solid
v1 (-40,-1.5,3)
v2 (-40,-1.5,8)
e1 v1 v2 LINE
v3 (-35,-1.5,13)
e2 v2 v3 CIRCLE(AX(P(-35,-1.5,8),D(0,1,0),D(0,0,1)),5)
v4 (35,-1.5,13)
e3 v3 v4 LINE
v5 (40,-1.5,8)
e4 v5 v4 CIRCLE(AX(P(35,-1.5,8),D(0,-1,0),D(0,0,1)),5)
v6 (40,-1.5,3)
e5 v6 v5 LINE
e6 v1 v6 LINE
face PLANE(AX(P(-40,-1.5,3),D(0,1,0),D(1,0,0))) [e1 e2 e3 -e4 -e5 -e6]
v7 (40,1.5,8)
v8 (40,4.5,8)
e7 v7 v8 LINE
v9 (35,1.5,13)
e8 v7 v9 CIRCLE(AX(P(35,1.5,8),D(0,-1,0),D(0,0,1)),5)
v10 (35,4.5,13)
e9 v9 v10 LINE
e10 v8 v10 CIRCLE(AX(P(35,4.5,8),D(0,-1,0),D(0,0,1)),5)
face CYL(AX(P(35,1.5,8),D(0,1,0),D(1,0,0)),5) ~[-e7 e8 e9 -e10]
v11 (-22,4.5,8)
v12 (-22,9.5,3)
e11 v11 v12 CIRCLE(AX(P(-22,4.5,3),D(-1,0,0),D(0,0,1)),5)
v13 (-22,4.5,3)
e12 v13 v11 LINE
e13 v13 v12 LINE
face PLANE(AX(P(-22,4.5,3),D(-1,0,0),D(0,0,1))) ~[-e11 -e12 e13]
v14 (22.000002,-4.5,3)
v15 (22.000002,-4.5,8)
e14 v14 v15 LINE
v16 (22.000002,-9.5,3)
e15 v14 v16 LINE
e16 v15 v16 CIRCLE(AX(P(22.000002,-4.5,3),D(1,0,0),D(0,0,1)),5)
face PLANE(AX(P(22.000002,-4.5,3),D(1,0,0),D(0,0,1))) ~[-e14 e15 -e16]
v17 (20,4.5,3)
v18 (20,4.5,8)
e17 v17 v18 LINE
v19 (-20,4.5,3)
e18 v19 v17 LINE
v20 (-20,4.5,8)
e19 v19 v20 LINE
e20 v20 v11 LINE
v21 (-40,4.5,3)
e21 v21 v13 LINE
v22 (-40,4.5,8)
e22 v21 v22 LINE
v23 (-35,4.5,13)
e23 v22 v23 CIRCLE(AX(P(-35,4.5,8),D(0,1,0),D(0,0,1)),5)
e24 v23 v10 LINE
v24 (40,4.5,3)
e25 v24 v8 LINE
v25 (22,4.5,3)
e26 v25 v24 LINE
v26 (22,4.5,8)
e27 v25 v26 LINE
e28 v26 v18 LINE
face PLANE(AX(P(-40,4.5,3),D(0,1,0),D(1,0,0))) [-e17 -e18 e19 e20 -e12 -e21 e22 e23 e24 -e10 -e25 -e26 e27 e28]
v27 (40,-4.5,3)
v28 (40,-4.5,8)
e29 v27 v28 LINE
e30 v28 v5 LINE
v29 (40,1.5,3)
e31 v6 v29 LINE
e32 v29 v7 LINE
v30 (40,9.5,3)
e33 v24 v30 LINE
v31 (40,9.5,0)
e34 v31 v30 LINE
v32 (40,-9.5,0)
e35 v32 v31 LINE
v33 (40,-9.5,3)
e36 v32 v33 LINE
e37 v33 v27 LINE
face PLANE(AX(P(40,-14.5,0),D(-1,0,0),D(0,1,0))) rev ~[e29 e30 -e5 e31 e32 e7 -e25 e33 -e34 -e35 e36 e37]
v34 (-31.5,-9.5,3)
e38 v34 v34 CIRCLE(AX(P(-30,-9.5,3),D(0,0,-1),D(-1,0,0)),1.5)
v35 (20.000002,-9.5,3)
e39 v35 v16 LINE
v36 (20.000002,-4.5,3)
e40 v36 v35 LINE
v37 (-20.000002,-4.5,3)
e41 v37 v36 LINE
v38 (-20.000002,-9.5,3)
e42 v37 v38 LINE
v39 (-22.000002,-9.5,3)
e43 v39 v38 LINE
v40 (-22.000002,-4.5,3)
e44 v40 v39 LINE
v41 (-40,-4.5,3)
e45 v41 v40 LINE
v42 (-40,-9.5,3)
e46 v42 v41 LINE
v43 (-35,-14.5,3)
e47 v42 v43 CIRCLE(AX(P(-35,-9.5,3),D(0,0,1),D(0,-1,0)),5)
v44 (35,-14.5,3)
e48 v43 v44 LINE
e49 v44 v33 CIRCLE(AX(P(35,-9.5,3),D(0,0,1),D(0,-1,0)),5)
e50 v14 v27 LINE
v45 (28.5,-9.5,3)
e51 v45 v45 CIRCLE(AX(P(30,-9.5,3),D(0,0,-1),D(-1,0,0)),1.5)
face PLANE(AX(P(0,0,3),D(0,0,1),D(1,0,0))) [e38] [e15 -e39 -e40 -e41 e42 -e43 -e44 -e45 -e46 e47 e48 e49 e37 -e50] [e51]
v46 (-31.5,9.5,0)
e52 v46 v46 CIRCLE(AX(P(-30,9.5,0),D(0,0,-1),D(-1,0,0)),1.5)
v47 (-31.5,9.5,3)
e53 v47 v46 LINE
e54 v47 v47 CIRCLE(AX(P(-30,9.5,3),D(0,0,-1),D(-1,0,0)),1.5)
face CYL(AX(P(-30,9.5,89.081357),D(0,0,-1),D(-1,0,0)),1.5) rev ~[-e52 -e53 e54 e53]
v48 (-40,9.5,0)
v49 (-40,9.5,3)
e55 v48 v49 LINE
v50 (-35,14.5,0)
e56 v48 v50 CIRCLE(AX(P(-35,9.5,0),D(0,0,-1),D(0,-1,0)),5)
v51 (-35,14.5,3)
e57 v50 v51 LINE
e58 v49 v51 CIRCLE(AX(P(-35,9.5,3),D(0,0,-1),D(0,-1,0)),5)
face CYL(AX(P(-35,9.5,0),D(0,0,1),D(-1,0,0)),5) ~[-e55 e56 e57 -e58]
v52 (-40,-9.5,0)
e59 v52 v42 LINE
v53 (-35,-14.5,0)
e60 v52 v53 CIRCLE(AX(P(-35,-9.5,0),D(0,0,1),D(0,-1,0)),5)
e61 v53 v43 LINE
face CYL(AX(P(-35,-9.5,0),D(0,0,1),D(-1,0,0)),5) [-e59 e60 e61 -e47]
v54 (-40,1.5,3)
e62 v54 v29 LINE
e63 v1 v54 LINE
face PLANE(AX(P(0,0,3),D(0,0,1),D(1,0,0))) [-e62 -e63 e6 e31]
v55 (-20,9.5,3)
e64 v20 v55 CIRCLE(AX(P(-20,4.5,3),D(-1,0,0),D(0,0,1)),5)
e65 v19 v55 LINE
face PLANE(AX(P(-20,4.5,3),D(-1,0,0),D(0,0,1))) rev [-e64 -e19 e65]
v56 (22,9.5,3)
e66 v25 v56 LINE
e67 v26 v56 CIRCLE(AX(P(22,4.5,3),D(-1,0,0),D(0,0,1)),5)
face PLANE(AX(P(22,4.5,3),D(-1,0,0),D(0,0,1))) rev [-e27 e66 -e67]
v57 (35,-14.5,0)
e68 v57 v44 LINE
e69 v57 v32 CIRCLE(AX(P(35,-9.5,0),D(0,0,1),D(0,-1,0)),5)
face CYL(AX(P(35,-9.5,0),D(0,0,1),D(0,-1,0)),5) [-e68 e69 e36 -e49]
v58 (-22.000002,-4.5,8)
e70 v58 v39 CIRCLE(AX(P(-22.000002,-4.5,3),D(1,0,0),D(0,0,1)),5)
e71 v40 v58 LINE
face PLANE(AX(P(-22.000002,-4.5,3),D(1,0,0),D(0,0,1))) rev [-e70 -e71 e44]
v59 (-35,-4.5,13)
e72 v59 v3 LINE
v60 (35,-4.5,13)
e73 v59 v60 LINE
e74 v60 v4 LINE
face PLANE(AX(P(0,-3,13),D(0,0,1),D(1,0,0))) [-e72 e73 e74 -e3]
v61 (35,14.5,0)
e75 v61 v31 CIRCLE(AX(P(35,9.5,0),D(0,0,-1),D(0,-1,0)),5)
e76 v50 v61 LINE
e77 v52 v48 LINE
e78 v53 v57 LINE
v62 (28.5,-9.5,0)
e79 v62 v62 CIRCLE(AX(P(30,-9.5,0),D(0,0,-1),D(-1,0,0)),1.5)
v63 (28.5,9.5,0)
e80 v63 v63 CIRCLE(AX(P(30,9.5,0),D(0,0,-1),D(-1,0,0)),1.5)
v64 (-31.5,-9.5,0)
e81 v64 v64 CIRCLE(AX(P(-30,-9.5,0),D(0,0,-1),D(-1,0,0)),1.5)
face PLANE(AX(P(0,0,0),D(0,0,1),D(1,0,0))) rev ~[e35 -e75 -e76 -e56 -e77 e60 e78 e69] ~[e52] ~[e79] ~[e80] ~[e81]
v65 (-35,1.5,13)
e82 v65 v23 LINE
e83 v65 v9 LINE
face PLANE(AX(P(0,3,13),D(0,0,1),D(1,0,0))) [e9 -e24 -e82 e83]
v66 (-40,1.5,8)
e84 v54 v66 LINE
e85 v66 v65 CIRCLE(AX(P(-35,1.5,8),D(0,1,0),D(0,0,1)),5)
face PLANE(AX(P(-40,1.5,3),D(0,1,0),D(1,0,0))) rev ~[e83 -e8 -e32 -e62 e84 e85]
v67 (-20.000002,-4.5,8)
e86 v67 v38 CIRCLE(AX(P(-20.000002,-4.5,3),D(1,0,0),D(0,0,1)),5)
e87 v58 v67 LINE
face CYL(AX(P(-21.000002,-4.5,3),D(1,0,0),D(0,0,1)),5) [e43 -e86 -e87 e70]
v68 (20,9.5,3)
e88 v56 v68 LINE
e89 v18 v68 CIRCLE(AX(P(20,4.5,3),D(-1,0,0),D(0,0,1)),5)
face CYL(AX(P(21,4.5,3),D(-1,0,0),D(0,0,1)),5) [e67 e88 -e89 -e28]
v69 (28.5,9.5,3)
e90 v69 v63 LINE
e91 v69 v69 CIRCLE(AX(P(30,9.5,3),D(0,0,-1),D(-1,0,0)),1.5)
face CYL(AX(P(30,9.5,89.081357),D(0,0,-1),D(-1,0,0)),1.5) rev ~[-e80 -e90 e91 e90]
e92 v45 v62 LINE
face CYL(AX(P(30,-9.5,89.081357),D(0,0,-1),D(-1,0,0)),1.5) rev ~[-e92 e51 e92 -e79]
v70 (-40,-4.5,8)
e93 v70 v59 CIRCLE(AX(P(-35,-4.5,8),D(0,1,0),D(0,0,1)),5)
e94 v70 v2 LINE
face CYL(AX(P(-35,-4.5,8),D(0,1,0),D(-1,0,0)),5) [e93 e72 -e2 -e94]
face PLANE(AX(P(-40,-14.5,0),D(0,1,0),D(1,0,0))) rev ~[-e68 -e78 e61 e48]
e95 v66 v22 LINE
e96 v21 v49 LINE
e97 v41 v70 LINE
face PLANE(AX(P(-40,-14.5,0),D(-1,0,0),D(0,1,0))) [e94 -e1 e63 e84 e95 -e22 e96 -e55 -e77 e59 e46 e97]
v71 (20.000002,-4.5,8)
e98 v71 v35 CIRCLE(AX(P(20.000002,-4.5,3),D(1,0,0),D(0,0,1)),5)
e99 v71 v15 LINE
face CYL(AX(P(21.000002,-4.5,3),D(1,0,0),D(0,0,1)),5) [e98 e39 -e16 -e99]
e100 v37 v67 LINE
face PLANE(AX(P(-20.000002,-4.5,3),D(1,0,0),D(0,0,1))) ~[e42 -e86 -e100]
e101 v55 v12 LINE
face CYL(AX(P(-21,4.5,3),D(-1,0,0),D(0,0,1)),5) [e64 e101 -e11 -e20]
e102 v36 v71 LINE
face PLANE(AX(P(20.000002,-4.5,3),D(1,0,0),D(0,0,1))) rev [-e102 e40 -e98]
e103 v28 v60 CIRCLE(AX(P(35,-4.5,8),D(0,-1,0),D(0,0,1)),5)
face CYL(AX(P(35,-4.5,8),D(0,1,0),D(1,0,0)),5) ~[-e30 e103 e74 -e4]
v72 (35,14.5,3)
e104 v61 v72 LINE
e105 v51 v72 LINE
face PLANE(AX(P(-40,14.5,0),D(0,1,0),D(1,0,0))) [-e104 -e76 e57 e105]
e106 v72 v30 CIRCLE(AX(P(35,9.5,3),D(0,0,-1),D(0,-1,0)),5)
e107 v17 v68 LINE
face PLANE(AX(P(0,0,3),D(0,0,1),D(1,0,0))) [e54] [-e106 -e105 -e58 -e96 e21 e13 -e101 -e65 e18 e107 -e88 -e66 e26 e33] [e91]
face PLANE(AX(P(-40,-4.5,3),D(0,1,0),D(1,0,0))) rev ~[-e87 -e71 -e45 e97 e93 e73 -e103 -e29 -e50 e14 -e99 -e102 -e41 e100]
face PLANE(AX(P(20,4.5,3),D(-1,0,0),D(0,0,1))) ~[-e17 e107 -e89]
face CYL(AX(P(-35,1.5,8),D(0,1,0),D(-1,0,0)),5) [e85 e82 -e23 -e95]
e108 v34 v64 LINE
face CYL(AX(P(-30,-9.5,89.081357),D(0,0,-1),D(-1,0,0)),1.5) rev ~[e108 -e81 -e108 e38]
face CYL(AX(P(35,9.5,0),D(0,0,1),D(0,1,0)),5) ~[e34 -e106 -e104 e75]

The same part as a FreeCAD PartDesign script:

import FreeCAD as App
import Part
import Sketcher
from FreeCAD import Vector
Q = App.Units.Quantity


def edges_at(feature, points):
    """Names of the edges that pass closest to the given points."""
    edges = feature.Shape.Edges
    near = lambda p: min(range(len(edges)), key=lambda i: edges[i].distToShape(Part.Vertex(*p))[0])
    return sorted({f"Edge{near(p) + 1}" for p in points})


def add_polygon(sketch, points):
    """Adds a closed chain of lines whose ends are joined by coincident constraints."""
    first, n = sketch.GeometryCount, len(points)
    for a, b in zip(points, points[1:] + points[:1]):
        sketch.addGeometry(Part.LineSegment(App.Vector(*a, 0), App.Vector(*b, 0)), False)
    for i in range(n):
        sketch.addConstraint(Sketcher.Constraint("Coincident", first + i, 2, first + (i + 1) % n, 1))

doc = App.newDocument("Part")
body = doc.addObject("PartDesign::Body", "Body")

sketch1 = doc.addObject("Sketcher::SketchObject", "Sketch")
body.addObject(sketch1)
sketch1.AttachmentSupport = (doc.XY_Plane, [""])
sketch1.MapMode = "FlatFace"
add_polygon(sketch1, [(-40, 14.5), (-40, -14.5), (40, -14.5), (40, 14.5)])
sketch1.addConstraint([
    Sketcher.Constraint("Vertical", 0),
    Sketcher.Constraint("Horizontal", 1),
    Sketcher.Constraint("Vertical", 2),
    Sketcher.Constraint("Horizontal", 3),
    Sketcher.Constraint("Symmetric", 0, 2, 2, 2, -1, 1),
    Sketcher.Constraint("DistanceX", 1, 1, 1, 2, Q("80 mm")),
    Sketcher.Constraint("DistanceY", 0, 2, 0, 1, Q("29 mm")),
])
pad1 = doc.addObject("PartDesign::Pad", "Pad")
body.addObject(pad1)
pad1.Profile = sketch1
pad1.Length = 3

sketch2 = doc.addObject("Sketcher::SketchObject", "Sketch001")
body.addObject(sketch2)
sketch2.AttachmentSupport = (doc.XY_Plane, [""])
sketch2.MapMode = "FlatFace"
sketch2.AttachmentOffset = App.Placement(Vector(0, 0, 3), App.Rotation())
add_polygon(sketch2, [(-40, 4.5), (-40, 1.5), (40, 1.5), (40, 4.5)])
add_polygon(sketch2, [(-40, -1.5), (-40, -4.5), (40, -4.5), (40, -1.5)])
sketch2.addConstraint([
    Sketcher.Constraint("Vertical", 0),
    Sketcher.Constraint("Horizontal", 1),
    Sketcher.Constraint("Vertical", 2),
    Sketcher.Constraint("Horizontal", 3),
    Sketcher.Constraint("Vertical", 4),
    Sketcher.Constraint("Horizontal", 5),
    Sketcher.Constraint("Vertical", 6),
    Sketcher.Constraint("Horizontal", 7),
    Sketcher.Constraint("Symmetric", 2, 2, 4, 2, -1, 1),
    Sketcher.Constraint("Symmetric", 0, 2, 6, 2, -1, 1),
    Sketcher.Constraint("Vertical", 3, 2, 4, 2),
    Sketcher.Constraint("DistanceX", 1, 1, 1, 2, Q("80 mm")),
    Sketcher.Constraint("DistanceY", 0, 2, 0, 1, Q("3 mm")),
    Sketcher.Constraint("DistanceY", 4, 2, 0, 2, Q("6 mm")),
])
pad2 = doc.addObject("PartDesign::Pad", "Pad001")
body.addObject(pad2)
pad2.Profile = sketch2
pad2.Length = 10
doc.recompute()

fillet = doc.addObject("PartDesign::Fillet", "Fillet")
body.addObject(fillet)
fillet.Base = (pad2, edges_at(pad2, [
    (40, 14.5, 1.5),
    (40, -14.5, 1.5),
    (-40, 14.5, 1.5),
    (-40, -14.5, 1.5),
    (40, 3, 13),
    (40, -3, 13),
    (-40, 3, 13),
    (-40, -3, 13),
]))
fillet.Radius = 5

sketch3 = doc.addObject("Sketcher::SketchObject", "Sketch002")
body.addObject(sketch3)
sketch3.AttachmentSupport = (doc.XY_Plane, [""])
sketch3.MapMode = "FlatFace"
sketch3.AttachmentOffset = App.Placement(Vector(0, 0, 3), App.Rotation())
sketch3.addGeometry([
    Part.Circle(Vector(-30, 9.5, 0), Vector(0, 0, 1), 1.5),
    Part.Circle(Vector(-30, -9.5, 0), Vector(0, 0, 1), 1.5),
    Part.Circle(Vector(30, -9.5, 0), Vector(0, 0, 1), 1.5),
    Part.Circle(Vector(30, 9.5, 0), Vector(0, 0, 1), 1.5),
], False)
sketch3.addConstraint([
    Sketcher.Constraint("Equal", 0, 1),
    Sketcher.Constraint("Equal", 1, 2),
    Sketcher.Constraint("Equal", 2, 3),
    Sketcher.Constraint("Symmetric", 0, 3, 2, 3, -1, 1),
    Sketcher.Constraint("Symmetric", 1, 3, 3, 3, -1, 1),
    Sketcher.Constraint("Symmetric", 1, 3, 2, 3, -2),
    Sketcher.Constraint("Diameter", 0, Q("3 mm")),
    Sketcher.Constraint("DistanceX", 0, 3, -1, 1, Q("30 mm")),
    Sketcher.Constraint("DistanceY", 1, 3, 0, 3, Q("19 mm")),
])
doc.recompute()
hole = doc.addObject("PartDesign::Hole", "Hole")
body.addObject(hole)
hole.Profile = sketch3
hole.ThreadType = "None"
hole.Diameter = 3
hole.DepthType = "ThroughAll"

sketch4 = doc.addObject("Sketcher::SketchObject", "Sketch003")
body.addObject(sketch4)
sketch4.AttachmentSupport = (doc.XZ_Plane, [""])
sketch4.MapMode = "FlatFace"
sketch4.AttachmentOffset = App.Placement(Vector(0, 0, -4.5), App.Rotation())
add_polygon(sketch4, [(22, 8), (22, 3), (20, 3), (20, 8)])
add_polygon(sketch4, [(-20, 8), (-20, 3), (-22, 3), (-22, 8)])
sketch4.addGeometry(Part.LineSegment(Vector(22, 3, 0), Vector(-22, 3, 0)), True)
sketch4.addConstraint([
    Sketcher.Constraint("Vertical", 0),
    Sketcher.Constraint("Horizontal", 1),
    Sketcher.Constraint("Vertical", 2),
    Sketcher.Constraint("Horizontal", 3),
    Sketcher.Constraint("Vertical", 4),
    Sketcher.Constraint("Horizontal", 5),
    Sketcher.Constraint("Vertical", 6),
    Sketcher.Constraint("Horizontal", 7),
    Sketcher.Constraint("Horizontal", 8),
    Sketcher.Constraint("Coincident", 8, 1, 0, 2),
    Sketcher.Constraint("Coincident", 8, 2, 5, 2),
    Sketcher.Constraint("Symmetric", 3, 2, 6, 2, -2),
    Sketcher.Constraint("Equal", 3, 5),
    Sketcher.Constraint("DistanceX", 1, 2, 1, 1, Q("2 mm")),
    Sketcher.Constraint("DistanceX", 8, 2, 8, 1, Q("44 mm")),
    Sketcher.Constraint("DistanceY", 0, 2, 0, 1, Q("5 mm")),
    Sketcher.Constraint("DistanceY", -1, 1, 0, 2, Q("3 mm")),
])
revolution = doc.addObject("PartDesign::Revolution", "Revolution")
body.addObject(revolution)
revolution.Profile = sketch4
revolution.ReferenceAxis = (sketch4, ["Axis0"])
revolution.Angle = 90

sketch5 = doc.addObject("Sketcher::SketchObject", "Sketch004")
body.addObject(sketch5)
sketch5.AttachmentSupport = (doc.XZ_Plane, [""])
sketch5.MapMode = "FlatFace"
sketch5.AttachmentOffset = App.Placement(Vector(0, 0, 4.5), App.Rotation())
add_polygon(sketch5, [(-22.000002, 8), (-22.000002, 3), (-20.000002, 3), (-20.000002, 8)])
add_polygon(sketch5, [(20.000002, 8), (20.000002, 3), (22.000002, 3), (22.000002, 8)])
sketch5.addGeometry(Part.LineSegment(Vector(-22.000002, 3, 0), Vector(22.000002, 3, 0)), True)
sketch5.addConstraint([
    Sketcher.Constraint("Vertical", 0),
    Sketcher.Constraint("Horizontal", 1),
    Sketcher.Constraint("Vertical", 2),
    Sketcher.Constraint("Horizontal", 3),
    Sketcher.Constraint("Vertical", 4),
    Sketcher.Constraint("Horizontal", 5),
    Sketcher.Constraint("Vertical", 6),
    Sketcher.Constraint("Horizontal", 7),
    Sketcher.Constraint("Horizontal", 8),
    Sketcher.Constraint("Coincident", 8, 1, 0, 2),
    Sketcher.Constraint("Coincident", 8, 2, 5, 2),
    Sketcher.Constraint("Symmetric", 3, 2, 6, 2, -2),
    Sketcher.Constraint("Equal", 3, 5),
    Sketcher.Constraint("DistanceX", 1, 1, 1, 2, Q("2 mm")),
    Sketcher.Constraint("DistanceY", 0, 2, 0, 1, Q("5 mm")),
    Sketcher.Constraint("DistanceX", 0, 2, -1, 1, Q("22.000002 mm")),
    Sketcher.Constraint("DistanceY", -1, 1, 0, 2, Q("3 mm")),
])
revolution2 = doc.addObject("PartDesign::Revolution", "Revolution001")
body.addObject(revolution2)
revolution2.Profile = sketch5
revolution2.ReferenceAxis = (sketch5, ["Axis0"])
revolution2.Angle = 90

doc.recompute()
